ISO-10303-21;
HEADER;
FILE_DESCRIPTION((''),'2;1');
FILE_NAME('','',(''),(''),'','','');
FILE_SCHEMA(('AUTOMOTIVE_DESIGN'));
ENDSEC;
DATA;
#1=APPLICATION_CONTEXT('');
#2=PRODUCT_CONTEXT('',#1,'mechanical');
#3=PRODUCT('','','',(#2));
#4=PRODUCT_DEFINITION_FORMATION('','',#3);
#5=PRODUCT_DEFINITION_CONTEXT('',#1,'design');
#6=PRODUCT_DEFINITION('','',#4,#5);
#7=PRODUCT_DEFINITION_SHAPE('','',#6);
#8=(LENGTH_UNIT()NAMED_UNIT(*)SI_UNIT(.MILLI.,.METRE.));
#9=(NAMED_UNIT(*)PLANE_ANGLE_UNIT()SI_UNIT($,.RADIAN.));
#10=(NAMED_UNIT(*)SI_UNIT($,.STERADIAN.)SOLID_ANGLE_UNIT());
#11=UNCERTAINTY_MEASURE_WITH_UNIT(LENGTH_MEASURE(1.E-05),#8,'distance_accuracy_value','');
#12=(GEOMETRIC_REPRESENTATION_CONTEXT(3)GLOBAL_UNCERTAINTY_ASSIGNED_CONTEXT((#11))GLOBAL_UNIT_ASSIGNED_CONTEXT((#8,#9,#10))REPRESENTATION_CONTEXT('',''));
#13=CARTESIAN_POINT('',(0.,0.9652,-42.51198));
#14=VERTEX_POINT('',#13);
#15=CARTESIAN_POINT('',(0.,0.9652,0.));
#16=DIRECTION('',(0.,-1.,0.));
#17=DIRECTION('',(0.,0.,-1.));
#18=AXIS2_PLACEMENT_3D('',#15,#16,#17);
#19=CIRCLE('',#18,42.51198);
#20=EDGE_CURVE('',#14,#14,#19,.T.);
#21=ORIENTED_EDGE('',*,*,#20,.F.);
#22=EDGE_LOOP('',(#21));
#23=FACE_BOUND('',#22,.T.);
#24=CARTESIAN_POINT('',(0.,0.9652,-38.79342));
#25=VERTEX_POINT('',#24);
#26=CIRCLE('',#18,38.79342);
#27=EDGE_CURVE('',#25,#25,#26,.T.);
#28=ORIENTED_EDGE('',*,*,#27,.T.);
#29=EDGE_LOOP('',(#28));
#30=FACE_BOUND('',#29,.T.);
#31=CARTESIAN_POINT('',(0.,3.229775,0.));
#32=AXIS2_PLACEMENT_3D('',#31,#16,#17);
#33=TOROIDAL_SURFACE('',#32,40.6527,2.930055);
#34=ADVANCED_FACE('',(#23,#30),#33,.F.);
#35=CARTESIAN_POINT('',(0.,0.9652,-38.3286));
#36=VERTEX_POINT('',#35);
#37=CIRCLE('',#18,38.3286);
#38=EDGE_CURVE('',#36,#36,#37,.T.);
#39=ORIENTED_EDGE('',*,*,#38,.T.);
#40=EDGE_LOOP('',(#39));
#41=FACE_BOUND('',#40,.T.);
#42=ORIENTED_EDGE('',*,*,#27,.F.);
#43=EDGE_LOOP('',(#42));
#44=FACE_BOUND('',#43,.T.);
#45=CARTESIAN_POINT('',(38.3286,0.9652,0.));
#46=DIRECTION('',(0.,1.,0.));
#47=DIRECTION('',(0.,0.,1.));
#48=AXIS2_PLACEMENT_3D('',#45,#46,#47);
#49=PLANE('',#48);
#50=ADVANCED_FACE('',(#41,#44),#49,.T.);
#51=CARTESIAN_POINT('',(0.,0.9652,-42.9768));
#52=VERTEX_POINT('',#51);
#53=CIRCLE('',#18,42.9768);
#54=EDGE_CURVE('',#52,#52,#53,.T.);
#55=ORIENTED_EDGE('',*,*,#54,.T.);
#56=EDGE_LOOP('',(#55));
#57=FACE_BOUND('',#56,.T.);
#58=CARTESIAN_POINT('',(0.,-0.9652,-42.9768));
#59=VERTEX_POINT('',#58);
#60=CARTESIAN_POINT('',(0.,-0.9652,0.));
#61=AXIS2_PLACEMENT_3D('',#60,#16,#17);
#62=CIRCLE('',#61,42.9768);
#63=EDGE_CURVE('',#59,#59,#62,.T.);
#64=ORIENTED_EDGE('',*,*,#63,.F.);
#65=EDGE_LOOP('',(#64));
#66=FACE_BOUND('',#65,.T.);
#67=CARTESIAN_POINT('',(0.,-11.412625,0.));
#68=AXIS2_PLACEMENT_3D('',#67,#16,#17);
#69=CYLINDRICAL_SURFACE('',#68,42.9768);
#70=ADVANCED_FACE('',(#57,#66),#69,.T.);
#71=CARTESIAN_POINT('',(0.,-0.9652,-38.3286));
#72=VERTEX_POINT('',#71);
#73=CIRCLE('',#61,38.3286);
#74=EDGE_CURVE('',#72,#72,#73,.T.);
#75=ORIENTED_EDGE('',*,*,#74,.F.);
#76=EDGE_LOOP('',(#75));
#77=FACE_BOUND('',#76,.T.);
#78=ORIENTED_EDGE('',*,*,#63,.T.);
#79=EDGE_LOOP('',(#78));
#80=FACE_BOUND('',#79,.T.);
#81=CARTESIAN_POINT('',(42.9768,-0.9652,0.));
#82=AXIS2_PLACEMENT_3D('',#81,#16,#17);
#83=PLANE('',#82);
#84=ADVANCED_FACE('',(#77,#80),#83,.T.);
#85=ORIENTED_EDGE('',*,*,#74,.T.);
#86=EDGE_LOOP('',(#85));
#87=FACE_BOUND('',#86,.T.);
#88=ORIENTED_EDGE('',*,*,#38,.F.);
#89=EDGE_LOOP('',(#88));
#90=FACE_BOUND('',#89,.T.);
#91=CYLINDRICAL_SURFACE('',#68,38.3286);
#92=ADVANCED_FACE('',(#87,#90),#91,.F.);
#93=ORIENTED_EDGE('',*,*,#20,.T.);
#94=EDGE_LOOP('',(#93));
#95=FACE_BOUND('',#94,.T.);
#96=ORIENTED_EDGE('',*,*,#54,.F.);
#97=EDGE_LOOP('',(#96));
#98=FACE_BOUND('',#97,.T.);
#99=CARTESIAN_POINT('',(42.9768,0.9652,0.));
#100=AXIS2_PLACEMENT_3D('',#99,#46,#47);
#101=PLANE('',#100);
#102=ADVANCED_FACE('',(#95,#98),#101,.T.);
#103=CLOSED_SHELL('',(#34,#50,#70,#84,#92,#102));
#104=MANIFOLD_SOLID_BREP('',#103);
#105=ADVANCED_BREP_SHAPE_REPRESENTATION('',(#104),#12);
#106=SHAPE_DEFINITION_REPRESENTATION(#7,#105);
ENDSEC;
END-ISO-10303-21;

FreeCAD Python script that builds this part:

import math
import FreeCAD as App
import Part
import Sketcher
from FreeCAD import Vector
Q = App.Units.Quantity

doc = App.newDocument("Part")
body = doc.addObject("PartDesign::Body", "Body")

# Sketch on XY plane
sketch1 = doc.addObject("Sketcher::SketchObject", "Sketch")
body.addObject(sketch1)
sketch1.AttachmentSupport = (doc.XY_Plane, [""])
sketch1.MapMode = "FlatFace"
sketch1.addGeometry(Part.LineSegment(Vector(42.9768, -0.9652, 0), Vector(42.9768, 0.9652, 0)), False)
sketch1.addGeometry(Part.LineSegment(Vector(42.9768, 0.9652, 0), Vector(42.51198, 0.9652, 0)), False)
sketch1.addGeometry(Part.ArcOfCircle(Part.Circle(Vector(40.6527, 3.229775, 0), Vector(0, 0, 1), 2.930055), math.radians(-129.386964), math.radians(-50.613036)), False)
sketch1.addGeometry(Part.LineSegment(Vector(38.79342, 0.9652, 0), Vector(38.3286, 0.9652, 0)), False)
sketch1.addGeometry(Part.LineSegment(Vector(38.3286, 0.9652, 0), Vector(38.3286, -0.9652, 0)), False)
sketch1.addGeometry(Part.LineSegment(Vector(38.3286, -0.9652, 0), Vector(42.9768, -0.9652, 0)), False)
sketch1.addConstraint(Sketcher.Constraint("Coincident", 0, 2, 1, 1))
sketch1.addConstraint(Sketcher.Constraint("Coincident", 1, 2, 2, 2))
sketch1.addConstraint(Sketcher.Constraint("Coincident", 2, 1, 3, 1))
sketch1.addConstraint(Sketcher.Constraint("Coincident", 3, 2, 4, 1))
sketch1.addConstraint(Sketcher.Constraint("Coincident", 4, 2, 5, 1))
sketch1.addConstraint(Sketcher.Constraint("Coincident", 5, 2, 0, 1))
sketch1.addConstraint(Sketcher.Constraint("Vertical", 0))
sketch1.addConstraint(Sketcher.Constraint("Horizontal", 1))
sketch1.addConstraint(Sketcher.Constraint("Horizontal", 3))
sketch1.addConstraint(Sketcher.Constraint("Vertical", 4))
sketch1.addConstraint(Sketcher.Constraint("Horizontal", 5))
sketch1.addConstraint(Sketcher.Constraint("Horizontal", 1, 2, 2, 1))
sketch1.addConstraint(Sketcher.Constraint("Equal", 1, 3))
sketch1.addConstraint(Sketcher.Constraint("DistanceX", 5, 1, 5, 2, Q("0.183 in")))
sketch1.addConstraint(Sketcher.Constraint("DistanceY", 0, 1, 0, 2, Q("0.076 in")))
sketch1.addConstraint(Sketcher.Constraint("DistanceX", 1, 2, 1, 1, Q("0.0183 in")))
sketch1.addConstraint(Sketcher.Constraint("DistanceX", -1, 1, 0, 2, Q("1.692 in")))
sketch1.addConstraint(Sketcher.Constraint("DistanceY", -1, 1, 0, 2, Q("0.038 in")))
sketch1.addConstraint(Sketcher.Constraint("Radius", 2, Q("2.930055 mm")))
revolution = doc.addObject("PartDesign::Revolution", "Revolution")
body.addObject(revolution)
revolution.Profile = sketch1
revolution.ReferenceAxis = (sketch1, ["V_Axis"])
revolution.Angle = 360

doc.recompute()
